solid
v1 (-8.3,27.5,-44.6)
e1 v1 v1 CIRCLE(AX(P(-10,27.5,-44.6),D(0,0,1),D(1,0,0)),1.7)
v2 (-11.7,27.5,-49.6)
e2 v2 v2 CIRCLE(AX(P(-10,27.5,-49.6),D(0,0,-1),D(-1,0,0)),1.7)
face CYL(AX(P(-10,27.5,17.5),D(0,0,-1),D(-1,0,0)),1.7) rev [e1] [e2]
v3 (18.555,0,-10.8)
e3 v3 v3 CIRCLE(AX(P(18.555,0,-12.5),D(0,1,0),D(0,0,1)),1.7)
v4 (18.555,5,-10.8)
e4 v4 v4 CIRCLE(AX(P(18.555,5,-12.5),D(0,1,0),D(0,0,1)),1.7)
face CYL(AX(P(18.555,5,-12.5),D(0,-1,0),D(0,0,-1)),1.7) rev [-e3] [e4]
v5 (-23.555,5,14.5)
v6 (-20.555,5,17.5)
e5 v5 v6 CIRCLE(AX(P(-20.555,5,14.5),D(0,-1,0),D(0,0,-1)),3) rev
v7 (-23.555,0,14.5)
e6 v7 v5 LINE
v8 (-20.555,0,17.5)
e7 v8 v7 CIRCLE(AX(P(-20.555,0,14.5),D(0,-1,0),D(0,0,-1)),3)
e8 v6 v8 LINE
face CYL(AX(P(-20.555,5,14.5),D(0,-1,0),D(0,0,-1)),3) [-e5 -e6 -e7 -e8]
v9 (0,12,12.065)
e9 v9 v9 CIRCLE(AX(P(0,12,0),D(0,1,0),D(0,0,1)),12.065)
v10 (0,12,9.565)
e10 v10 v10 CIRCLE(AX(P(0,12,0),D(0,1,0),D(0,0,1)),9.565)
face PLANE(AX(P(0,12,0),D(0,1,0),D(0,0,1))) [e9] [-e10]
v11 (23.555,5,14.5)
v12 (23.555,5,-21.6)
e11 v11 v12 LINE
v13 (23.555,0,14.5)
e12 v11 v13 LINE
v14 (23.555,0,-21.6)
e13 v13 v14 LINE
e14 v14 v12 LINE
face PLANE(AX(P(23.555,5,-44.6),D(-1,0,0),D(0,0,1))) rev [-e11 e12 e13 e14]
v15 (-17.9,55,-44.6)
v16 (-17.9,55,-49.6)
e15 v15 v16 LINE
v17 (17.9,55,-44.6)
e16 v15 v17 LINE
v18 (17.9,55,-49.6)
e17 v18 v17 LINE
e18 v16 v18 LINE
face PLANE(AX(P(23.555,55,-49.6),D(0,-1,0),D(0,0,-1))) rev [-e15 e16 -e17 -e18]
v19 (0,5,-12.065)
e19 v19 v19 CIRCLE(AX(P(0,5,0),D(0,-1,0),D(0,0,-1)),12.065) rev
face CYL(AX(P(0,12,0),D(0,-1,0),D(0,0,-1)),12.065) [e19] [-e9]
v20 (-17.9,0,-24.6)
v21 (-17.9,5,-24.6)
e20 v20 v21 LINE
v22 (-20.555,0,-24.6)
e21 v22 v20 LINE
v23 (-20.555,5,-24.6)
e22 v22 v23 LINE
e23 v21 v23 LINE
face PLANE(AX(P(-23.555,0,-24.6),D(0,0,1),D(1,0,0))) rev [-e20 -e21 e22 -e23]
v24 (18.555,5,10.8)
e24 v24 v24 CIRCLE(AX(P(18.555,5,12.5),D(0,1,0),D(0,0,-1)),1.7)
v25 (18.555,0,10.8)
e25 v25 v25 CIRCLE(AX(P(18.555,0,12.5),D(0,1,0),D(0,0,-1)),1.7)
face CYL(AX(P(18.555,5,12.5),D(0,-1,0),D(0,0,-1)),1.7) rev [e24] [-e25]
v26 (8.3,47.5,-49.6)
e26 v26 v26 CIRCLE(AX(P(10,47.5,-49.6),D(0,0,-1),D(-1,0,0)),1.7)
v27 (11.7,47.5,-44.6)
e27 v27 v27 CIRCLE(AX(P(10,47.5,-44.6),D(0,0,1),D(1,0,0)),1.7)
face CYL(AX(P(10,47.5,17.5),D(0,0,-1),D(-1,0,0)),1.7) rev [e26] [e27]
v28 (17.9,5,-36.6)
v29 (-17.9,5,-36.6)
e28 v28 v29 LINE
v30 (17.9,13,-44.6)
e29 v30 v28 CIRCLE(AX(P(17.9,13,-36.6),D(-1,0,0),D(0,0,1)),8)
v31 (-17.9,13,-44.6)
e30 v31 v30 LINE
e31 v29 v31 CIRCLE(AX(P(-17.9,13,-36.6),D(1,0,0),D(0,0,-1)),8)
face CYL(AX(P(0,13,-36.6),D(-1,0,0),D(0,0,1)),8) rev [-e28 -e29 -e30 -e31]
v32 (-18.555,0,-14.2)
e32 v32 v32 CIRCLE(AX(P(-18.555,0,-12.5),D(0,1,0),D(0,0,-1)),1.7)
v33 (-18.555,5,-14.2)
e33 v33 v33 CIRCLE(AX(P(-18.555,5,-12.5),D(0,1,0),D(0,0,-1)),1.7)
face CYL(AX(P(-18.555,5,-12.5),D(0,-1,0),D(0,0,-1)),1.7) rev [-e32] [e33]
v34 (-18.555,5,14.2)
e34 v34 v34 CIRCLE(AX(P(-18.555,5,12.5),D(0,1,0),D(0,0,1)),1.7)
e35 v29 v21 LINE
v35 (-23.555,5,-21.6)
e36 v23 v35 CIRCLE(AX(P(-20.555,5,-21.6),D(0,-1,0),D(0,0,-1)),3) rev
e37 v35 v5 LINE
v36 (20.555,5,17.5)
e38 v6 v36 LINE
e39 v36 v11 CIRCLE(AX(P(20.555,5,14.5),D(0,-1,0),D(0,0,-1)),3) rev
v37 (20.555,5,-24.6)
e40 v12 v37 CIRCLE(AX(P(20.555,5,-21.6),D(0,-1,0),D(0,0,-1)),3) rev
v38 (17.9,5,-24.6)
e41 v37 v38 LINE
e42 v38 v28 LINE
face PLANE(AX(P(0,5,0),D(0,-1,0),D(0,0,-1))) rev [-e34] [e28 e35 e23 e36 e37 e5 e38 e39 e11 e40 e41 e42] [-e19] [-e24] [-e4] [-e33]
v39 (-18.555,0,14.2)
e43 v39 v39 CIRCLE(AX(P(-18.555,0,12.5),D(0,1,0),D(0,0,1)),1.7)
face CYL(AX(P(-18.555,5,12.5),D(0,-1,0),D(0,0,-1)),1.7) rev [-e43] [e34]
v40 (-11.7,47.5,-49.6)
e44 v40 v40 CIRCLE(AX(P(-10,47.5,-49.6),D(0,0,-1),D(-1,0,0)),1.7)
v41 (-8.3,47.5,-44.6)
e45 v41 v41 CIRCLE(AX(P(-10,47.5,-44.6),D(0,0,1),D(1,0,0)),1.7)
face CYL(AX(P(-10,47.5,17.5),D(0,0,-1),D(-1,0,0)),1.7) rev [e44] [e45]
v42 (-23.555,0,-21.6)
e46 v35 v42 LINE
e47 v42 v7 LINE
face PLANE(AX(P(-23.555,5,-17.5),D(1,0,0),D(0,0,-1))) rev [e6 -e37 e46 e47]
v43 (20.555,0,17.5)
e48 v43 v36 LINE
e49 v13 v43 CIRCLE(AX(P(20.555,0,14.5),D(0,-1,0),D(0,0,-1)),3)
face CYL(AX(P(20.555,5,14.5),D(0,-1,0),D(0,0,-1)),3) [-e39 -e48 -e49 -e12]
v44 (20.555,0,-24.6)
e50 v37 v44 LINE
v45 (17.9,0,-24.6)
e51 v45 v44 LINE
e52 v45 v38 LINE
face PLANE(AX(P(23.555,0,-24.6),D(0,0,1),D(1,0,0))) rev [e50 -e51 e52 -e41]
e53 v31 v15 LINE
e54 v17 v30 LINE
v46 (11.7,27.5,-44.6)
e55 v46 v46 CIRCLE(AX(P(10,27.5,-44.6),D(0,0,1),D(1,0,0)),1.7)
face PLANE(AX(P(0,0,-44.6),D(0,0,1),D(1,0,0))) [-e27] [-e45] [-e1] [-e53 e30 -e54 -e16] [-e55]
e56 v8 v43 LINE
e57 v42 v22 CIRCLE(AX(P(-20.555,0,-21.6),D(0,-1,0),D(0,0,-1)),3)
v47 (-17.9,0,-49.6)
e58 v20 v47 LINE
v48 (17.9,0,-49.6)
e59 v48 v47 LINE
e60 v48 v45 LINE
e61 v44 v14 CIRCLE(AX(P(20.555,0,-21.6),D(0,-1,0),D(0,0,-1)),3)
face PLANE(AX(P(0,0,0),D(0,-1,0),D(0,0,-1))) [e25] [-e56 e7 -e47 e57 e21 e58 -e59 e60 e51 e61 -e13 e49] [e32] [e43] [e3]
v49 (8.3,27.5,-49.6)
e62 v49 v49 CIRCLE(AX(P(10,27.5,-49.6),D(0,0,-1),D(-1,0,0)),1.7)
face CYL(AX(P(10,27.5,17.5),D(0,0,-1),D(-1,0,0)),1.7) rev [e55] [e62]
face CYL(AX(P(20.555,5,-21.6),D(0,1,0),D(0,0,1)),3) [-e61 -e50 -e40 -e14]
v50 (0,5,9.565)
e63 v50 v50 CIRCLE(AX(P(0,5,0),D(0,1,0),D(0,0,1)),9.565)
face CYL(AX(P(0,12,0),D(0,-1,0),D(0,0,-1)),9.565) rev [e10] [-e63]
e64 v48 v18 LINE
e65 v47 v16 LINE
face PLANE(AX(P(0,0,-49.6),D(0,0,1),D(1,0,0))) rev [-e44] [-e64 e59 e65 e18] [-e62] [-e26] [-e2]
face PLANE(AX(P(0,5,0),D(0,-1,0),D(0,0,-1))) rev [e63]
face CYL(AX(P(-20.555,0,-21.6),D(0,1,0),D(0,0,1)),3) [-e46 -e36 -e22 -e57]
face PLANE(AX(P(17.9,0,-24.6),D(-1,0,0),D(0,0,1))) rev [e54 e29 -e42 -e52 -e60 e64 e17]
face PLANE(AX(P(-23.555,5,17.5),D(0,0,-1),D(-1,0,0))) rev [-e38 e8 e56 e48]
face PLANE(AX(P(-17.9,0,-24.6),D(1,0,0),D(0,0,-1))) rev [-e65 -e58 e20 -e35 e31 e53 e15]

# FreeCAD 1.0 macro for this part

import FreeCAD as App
import Part
import Sketcher

V = App.Vector
Q = App.Units.Quantity


def edges_at(feature, points):
    """Names of the edges that pass closest to the given points."""
    edges = feature.Shape.Edges
    near = lambda p: min(range(len(edges)), key=lambda i: edges[i].distToShape(Part.Vertex(*p))[0])
    return sorted({f"Edge{near(p) + 1}" for p in points})

doc = App.newDocument("Part")
body = doc.addObject("PartDesign::Body", "Body")

sketch1 = body.newObject("Sketcher::SketchObject", "Sketch")
sketch1.AttachmentSupport = (doc.getObject("XZ_Plane"), [""])
sketch1.MapMode = "FlatFace"
sketch1.addGeometry([
    Part.LineSegment(V(-23.6, 17.5, 0), V(23.6, 17.5, 0)),
    Part.LineSegment(V(23.6, 17.5, 0), V(23.6, -44.6, 0)),
    Part.LineSegment(V(23.6, -44.6, 0), V(-23.6, -44.6, 0)),
    Part.LineSegment(V(-23.6, -44.6, 0), V(-23.6, 17.5, 0)),
    Part.Circle(V(-18.6, 12.5, 0), V(0, 0, 1), 1.7),
    Part.Circle(V(18.6, 12.5, 0), V(0, 0, 1), 1.7),
    Part.Circle(V(-18.6, -12.5, 0), V(0, 0, 1), 1.7),
    Part.Circle(V(18.6, -12.5, 0), V(0, 0, 1), 1.7),
], False)
sketch1.addConstraint([
    Sketcher.Constraint("Coincident", 0, 2, 1, 1),
    Sketcher.Constraint("Coincident", 1, 2, 2, 1),
    Sketcher.Constraint("Coincident", 2, 2, 3, 1),
    Sketcher.Constraint("Coincident", 3, 2, 0, 1),
    Sketcher.Constraint("Horizontal", 0),
    Sketcher.Constraint("Vertical", 1),
    Sketcher.Constraint("Horizontal", 2),
    Sketcher.Constraint("Vertical", 3),
    Sketcher.Constraint("Equal", 4, 5),
    Sketcher.Constraint("Equal", 5, 6),
    Sketcher.Constraint("Equal", 6, 7),
    Sketcher.Constraint("Symmetric", 5, 3, 6, 3, -1, 1),
    Sketcher.Constraint("Symmetric", 4, 3, 7, 3, -1, 1),
    Sketcher.Constraint("Symmetric", 4, 3, 5, 3, -2),
    Sketcher.Constraint("Diameter", 4, Q("3.4 mm")),
    Sketcher.Constraint("DistanceY", 1, 2, 1, 1, Q("62.1 mm")),
    Sketcher.Constraint("DistanceY", 6, 3, 4, 3, Q("25 mm")),
    Sketcher.Constraint("DistanceX", 5, 3, 0, 2, Q("5 mm")),
    Sketcher.Constraint("DistanceY", 5, 3, 0, 2, Q("5 mm")),
    Sketcher.Constraint("DistanceX", 2, 2, 6, 3, Q("5 mm")),
    Sketcher.Constraint("DistanceX", 0, 1, 0, 2, Q("47.11 mm")),
])
pad1 = body.newObject("PartDesign::Pad", "Pad")
pad1.Profile = sketch1
pad1.Length = 5
pad1.Reversed = True

sketch2 = body.newObject("Sketcher::SketchObject", "Sketch001")
sketch2.AttachmentSupport = (doc.getObject("XZ_Plane"), [""])
sketch2.MapMode = "FlatFace"
sketch2.AttachmentOffset = App.Placement(V(0, 0, -5), App.Rotation())
sketch2.addGeometry([
    Part.Circle(V(0, 0, 0), V(0, 0, 1), 12),
    Part.Circle(V(0, 0, 0), V(0, 0, 1), 10),
], False)
sketch2.addConstraint([
    Sketcher.Constraint("Coincident", 0, 3, -1, 1),
    Sketcher.Constraint("Coincident", 1, 3, -1, 1),
    Sketcher.Constraint("Diameter", 0, Q("24.13 mm")),
    Sketcher.Constraint("Diameter", 1, Q("19.13 mm")),
])
pad2 = body.newObject("PartDesign::Pad", "Pad001")
pad2.Profile = sketch2
pad2.Length = 7
pad2.Reversed = True

sketch3 = body.newObject("Sketcher::SketchObject", "Sketch002")
sketch3.AttachmentSupport = (doc.getObject("XY_Plane"), [""])
sketch3.MapMode = "FlatFace"
sketch3.AttachmentOffset = App.Placement(V(0, 0, -44.6), App.Rotation())
sketch3.addGeometry([
    Part.LineSegment(V(24, 55, 0), V(24, 0, 0)),
    Part.LineSegment(V(24, 0, 0), V(-24, 0, 0)),
    Part.LineSegment(V(-24, 0, 0), V(-24, 55, 0)),
    Part.LineSegment(V(-24, 55, 0), V(24, 55, 0)),
], False)
sketch3.addConstraint([
    Sketcher.Constraint("Coincident", 0, 2, 1, 1),
    Sketcher.Constraint("Coincident", 1, 2, 2, 1),
    Sketcher.Constraint("Coincident", 2, 2, 3, 1),
    Sketcher.Constraint("Coincident", 3, 2, 0, 1),
    Sketcher.Constraint("Vertical", 0),
    Sketcher.Constraint("Horizontal", 1),
    Sketcher.Constraint("Vertical", 2),
    Sketcher.Constraint("Horizontal", 3),
    Sketcher.Constraint("Symmetric", 0, 2, 1, 2, -1, 1),
    Sketcher.Constraint("DistanceY", 0, 2, 0, 1, Q("55 mm")),
    Sketcher.Constraint("DistanceX", 1, 2, 1, 1, Q("47.11 mm")),
])
pad3 = body.newObject("PartDesign::Pad", "Pad002")
pad3.Profile = sketch3
pad3.Length = 5
pad3.Reversed = True

sketch4 = body.newObject("Sketcher::SketchObject", "Sketch003")
sketch4.AttachmentSupport = (doc.getObject("XY_Plane"), [""])
sketch4.MapMode = "FlatFace"
sketch4.AttachmentOffset = App.Placement(V(0, 0, -49.6), App.Rotation())
sketch4.addGeometry([
    Part.Circle(V(10, 47.5, 0), V(0, 0, 1), 1.7),
    Part.Circle(V(10, 27.5, 0), V(0, 0, 1), 1.7),
    Part.Circle(V(-10, 27.5, 0), V(0, 0, 1), 1.7),
    Part.Circle(V(-10, 47.5, 0), V(0, 0, 1), 1.7),
], False)
sketch4.addConstraint([
    Sketcher.Constraint("Equal", 0, 1),
    Sketcher.Constraint("Equal", 1, 2),
    Sketcher.Constraint("Equal", 2, 3),
    Sketcher.Constraint("Symmetric", 1, 3, 2, 3, -2),
    Sketcher.Constraint("Symmetric", 0, 3, 3, 3, -2),
    Sketcher.Constraint("Vertical", 0, 3, 1, 3),
    Sketcher.Constraint("Diameter", 0, Q("3.4 mm")),
    Sketcher.Constraint("DistanceX", -1, 1, 0, 3, Q("10 mm")),
    Sketcher.Constraint("DistanceY", 1, 3, 0, 3, Q("20 mm")),
    Sketcher.Constraint("DistanceY", -1, 1, 0, 3, Q("47.5 mm")),
])
pocket1 = body.newObject("PartDesign::Pocket", "Pocket")
pocket1.Profile = sketch4
pocket1.Type = "ThroughAll"
pocket1.Reversed = True

sketch5 = body.newObject("Sketcher::SketchObject", "Sketch004")
sketch5.AttachmentSupport = (doc.getObject("XZ_Plane"), [""])
sketch5.MapMode = "FlatFace"
sketch5.AttachmentOffset = App.Placement(V(0, 0, -55), App.Rotation())
sketch5.addGeometry([
    Part.LineSegment(V(-24, -50, 0), V(-24, -25, 0)),
    Part.LineSegment(V(-24, -25, 0), V(-18, -25, 0)),
    Part.LineSegment(V(-18, -25, 0), V(-18, -50, 0)),
    Part.LineSegment(V(-18, -50, 0), V(-24, -50, 0)),
    Part.LineSegment(V(18, -50, 0), V(18, -25, 0)),
    Part.LineSegment(V(18, -25, 0), V(24, -25, 0)),
    Part.LineSegment(V(24, -25, 0), V(24, -50, 0)),
    Part.LineSegment(V(24, -50, 0), V(18, -50, 0)),
], False)
sketch5.addConstraint([
    Sketcher.Constraint("Coincident", 0, 2, 1, 1),
    Sketcher.Constraint("Coincident", 1, 2, 2, 1),
    Sketcher.Constraint("Coincident", 2, 2, 3, 1),
    Sketcher.Constraint("Coincident", 3, 2, 0, 1),
    Sketcher.Constraint("Coincident", 4, 2, 5, 1),
    Sketcher.Constraint("Coincident", 5, 2, 6, 1),
    Sketcher.Constraint("Coincident", 6, 2, 7, 1),
    Sketcher.Constraint("Coincident", 7, 2, 4, 1),
    Sketcher.Constraint("Vertical", 0),
    Sketcher.Constraint("Horizontal", 1),
    Sketcher.Constraint("Vertical", 2),
    Sketcher.Constraint("Horizontal", 3),
    Sketcher.Constraint("Vertical", 4),
    Sketcher.Constraint("Horizontal", 5),
    Sketcher.Constraint("Vertical", 6),
    Sketcher.Constraint("Horizontal", 7),
    Sketcher.Constraint("Symmetric", 1, 2, 4, 2, -2),
    Sketcher.Constraint("Symmetric", 3, 2, 6, 2, -2),
    Sketcher.Constraint("DistanceY", 0, 1, 0, 2, Q("25 mm")),
    Sketcher.Constraint("DistanceY", 0, 2, -1, 1, Q("24.6 mm")),
    Sketcher.Constraint("DistanceX", 1, 2, -1, 1, Q("17.9 mm")),
    Sketcher.Constraint("DistanceX", 1, 1, 1, 2, Q("5.655 mm")),
])
pocket2 = body.newObject("PartDesign::Pocket", "Pocket001")
pocket2.Profile = sketch5
pocket2.Type = "ThroughAll"
pocket2.Reversed = True
doc.recompute()

fillet = body.newObject("PartDesign::Fillet", "Fillet")
fillet.Base = (pocket2, edges_at(pocket2, [
    (23.555, 2.5, -24.6),
    (23.555, 2.5, 17.5),
    (-23.555, 2.5, 17.5),
    (-23.555, 2.5, -24.6),
]))
fillet.Radius = 3
doc.recompute()

fillet2 = body.newObject("PartDesign::Fillet", "Fillet001")
fillet2.Base = (fillet, edges_at(fillet, [(0, 5, -44.6)]))
fillet2.Radius = 8

doc.recompute()
